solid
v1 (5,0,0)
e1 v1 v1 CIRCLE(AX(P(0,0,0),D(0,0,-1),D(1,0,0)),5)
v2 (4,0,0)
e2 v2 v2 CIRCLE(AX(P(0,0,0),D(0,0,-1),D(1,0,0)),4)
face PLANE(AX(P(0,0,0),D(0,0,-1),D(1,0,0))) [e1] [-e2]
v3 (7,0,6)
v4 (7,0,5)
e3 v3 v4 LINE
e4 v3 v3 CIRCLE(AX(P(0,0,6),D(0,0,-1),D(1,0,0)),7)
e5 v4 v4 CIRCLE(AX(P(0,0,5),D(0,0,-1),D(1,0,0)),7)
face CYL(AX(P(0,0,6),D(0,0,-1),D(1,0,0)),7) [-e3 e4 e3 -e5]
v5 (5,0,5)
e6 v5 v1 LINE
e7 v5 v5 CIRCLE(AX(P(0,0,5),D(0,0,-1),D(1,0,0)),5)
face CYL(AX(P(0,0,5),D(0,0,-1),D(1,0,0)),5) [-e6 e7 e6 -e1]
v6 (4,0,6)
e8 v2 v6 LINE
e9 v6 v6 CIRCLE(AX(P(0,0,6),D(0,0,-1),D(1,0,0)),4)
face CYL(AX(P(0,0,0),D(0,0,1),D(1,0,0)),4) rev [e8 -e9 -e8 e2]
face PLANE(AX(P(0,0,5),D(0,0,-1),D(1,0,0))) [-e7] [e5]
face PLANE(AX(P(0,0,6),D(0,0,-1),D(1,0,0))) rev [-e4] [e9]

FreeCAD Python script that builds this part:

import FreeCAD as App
import Part
import Sketcher
from FreeCAD import Vector


def add_polygon(sketch, points):
    """Adds a closed chain of lines whose ends are joined by coincident constraints."""
    first, n = sketch.GeometryCount, len(points)
    for a, b in zip(points, points[1:] + points[:1]):
        sketch.addGeometry(Part.LineSegment(App.Vector(*a, 0), App.Vector(*b, 0)), False)
    for i in range(n):
        sketch.addConstraint(Sketcher.Constraint("Coincident", first + i, 2, first + (i + 1) % n, 1))

doc = App.newDocument("Part")
body = doc.addObject("PartDesign::Body", "Body")

sketch1 = doc.addObject("Sketcher::SketchObject", "Sketch")
body.addObject(sketch1)
sketch1.AttachmentSupport = (doc.XZ_Plane, [""])
sketch1.MapMode = "FlatFace"
add_polygon(sketch1, [(4, 6), (4, 0), (5, 0), (5, 5), (7, 5), (7, 6)])
sketch1.addConstraint(Sketcher.Constraint("Vertical", 0))
sketch1.addConstraint(Sketcher.Constraint("Horizontal", 1))
sketch1.addConstraint(Sketcher.Constraint("Vertical", 2))
sketch1.addConstraint(Sketcher.Constraint("Horizontal", 3))
sketch1.addConstraint(Sketcher.Constraint("Vertical", 4))
sketch1.addConstraint(Sketcher.Constraint("Horizontal", 5))
sketch1.addConstraint(Sketcher.Constraint("PointOnObject", 0, 2, -1))
sketch1.addConstraint(Sketcher.Constraint("Equal", 1, 4))
sketch1.addConstraint(Sketcher.Constraint("DistanceX", -1, 1, 0, 2, 4.0))
sketch1.addConstraint(Sketcher.Constraint("DistanceX", -1, 1, 3, 2, 7.0))
sketch1.addConstraint(Sketcher.Constraint("DistanceX", 1, 1, 1, 2, 1.0))
sketch1.addConstraint(Sketcher.Constraint("DistanceY", 0, 2, 0, 1, 6.0))
revolution = doc.addObject("PartDesign::Revolution", "Revolution")
body.addObject(revolution)
revolution.Profile = sketch1
revolution.ReferenceAxis = (sketch1, ["V_Axis"])
revolution.Angle = 360

doc.recompute()
